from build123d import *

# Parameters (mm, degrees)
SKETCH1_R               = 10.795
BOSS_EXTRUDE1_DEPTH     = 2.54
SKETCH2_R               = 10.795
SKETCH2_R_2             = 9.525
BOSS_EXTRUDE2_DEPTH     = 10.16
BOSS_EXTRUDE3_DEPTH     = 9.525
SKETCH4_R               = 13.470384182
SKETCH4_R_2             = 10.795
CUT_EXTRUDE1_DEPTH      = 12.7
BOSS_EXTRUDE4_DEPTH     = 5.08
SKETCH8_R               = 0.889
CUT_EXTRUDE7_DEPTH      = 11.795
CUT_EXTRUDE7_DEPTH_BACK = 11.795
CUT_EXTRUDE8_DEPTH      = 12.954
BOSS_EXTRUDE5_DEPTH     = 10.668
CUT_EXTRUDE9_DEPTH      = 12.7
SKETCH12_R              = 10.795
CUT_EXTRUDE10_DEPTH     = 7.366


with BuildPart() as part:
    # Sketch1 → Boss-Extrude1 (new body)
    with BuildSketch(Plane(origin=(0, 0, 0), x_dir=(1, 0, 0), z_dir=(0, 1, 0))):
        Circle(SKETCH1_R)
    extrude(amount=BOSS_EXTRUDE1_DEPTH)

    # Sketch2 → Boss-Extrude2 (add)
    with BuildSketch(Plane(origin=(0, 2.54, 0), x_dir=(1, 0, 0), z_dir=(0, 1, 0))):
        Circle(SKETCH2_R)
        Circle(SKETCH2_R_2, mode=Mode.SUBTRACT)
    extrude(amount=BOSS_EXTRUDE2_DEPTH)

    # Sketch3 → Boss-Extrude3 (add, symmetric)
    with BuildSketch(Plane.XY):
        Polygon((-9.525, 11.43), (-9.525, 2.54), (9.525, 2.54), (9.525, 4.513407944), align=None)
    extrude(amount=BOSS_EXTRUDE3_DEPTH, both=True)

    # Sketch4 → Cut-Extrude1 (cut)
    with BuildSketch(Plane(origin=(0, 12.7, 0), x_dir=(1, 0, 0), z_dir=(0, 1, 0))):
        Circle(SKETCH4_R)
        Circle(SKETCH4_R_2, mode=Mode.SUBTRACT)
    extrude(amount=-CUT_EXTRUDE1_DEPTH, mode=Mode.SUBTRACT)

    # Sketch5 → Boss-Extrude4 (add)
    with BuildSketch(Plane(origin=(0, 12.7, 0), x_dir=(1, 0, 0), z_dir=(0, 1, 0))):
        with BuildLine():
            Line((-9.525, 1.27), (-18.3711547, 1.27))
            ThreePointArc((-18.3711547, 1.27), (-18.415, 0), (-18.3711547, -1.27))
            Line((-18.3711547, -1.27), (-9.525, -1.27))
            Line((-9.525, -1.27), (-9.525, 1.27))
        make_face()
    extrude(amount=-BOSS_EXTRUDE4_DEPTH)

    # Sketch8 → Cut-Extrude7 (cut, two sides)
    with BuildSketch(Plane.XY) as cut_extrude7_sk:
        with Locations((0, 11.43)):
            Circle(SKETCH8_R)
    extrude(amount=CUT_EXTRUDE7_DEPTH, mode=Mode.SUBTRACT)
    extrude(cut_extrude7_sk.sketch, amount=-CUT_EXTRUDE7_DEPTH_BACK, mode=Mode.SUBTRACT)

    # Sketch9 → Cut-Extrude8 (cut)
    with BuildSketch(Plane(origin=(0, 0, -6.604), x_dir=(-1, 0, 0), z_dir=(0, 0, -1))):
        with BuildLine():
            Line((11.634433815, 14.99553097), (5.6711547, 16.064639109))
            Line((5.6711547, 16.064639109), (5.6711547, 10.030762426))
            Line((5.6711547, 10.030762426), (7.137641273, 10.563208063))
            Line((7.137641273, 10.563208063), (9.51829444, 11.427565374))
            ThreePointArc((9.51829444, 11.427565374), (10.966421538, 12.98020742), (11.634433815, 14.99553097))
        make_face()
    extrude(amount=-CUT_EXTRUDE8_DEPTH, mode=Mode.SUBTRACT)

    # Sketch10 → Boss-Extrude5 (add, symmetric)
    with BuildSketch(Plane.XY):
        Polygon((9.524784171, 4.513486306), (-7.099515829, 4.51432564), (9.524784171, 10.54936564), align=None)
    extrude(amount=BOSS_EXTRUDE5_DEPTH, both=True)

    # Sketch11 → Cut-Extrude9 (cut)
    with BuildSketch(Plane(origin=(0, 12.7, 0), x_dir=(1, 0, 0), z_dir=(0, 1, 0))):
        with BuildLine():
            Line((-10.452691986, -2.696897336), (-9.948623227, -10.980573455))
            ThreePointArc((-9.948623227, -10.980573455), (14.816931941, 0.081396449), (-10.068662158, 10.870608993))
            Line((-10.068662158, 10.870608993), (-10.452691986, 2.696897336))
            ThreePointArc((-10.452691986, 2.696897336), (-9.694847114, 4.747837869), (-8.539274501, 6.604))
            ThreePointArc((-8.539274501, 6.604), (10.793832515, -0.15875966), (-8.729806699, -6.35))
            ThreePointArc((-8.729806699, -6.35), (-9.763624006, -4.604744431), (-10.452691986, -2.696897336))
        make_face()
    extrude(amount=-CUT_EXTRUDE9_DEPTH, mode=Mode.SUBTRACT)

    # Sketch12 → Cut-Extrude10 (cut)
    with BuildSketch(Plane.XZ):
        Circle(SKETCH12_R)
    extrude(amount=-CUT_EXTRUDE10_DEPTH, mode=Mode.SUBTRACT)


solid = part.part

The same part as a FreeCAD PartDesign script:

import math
import FreeCAD as App
import Part
import Sketcher
Q = App.Units.Quantity

doc = App.newDocument("Part")
params = doc.addObject("Spreadsheet::Sheet", "Params")
for row, (alias, value) in enumerate([
    ("sketch1_diameter", "0.85 in"),
    ("pad1_length", "0.1 in"),
    ("sketch2_diameter", "0.85 in"),
    ("sketch2_diameter2", "0.75 in"),
    ("pad2_length", "0.4 in"),
    ("sketch3_width", "0.75 in"),
    ("sketch3_height", "0.35 in"),
    ("pad3_length", "0.75 in"),
    ("sketch4_diameter", "0.85 in"),
    ("pocket1_length", "0.5 in"),
    ("sketch5_height", "0.1 in"),
    ("sketch5_radius", "0.725 in"),
    ("pad4_length", "0.2 in"),
    ("sketch6_diameter", "0.07 in"),
    ("pocket3_length", "0.51 in"),
    ("pad5_length", "0.84 in"),
    ("sketch9_radius", "0.425 in"),
    ("pocket4_length", "0.5 in"),
    ("sketch10_diameter", "0.85 in"),
    ("pocket5_length", "0.29 in"),
], start=1):
    params.set(f"A{row}", alias)
    params.set(f"B{row}", "=" + value)
    params.setAlias(f"B{row}", alias)

body = doc.addObject("PartDesign::Body", "Body")

sketch1 = doc.addObject("Sketcher::SketchObject", "Sketch")
body.addObject(sketch1)
sketch1.AttachmentSupport = (doc.XZ_Plane, [""])
sketch1.MapMode = "FlatFace"
sketch1.addGeometry(Part.Circle(App.Vector(0, 0, 0), App.Vector(0, 0, 1), 10.795), False)
sketch1.addConstraint(Sketcher.Constraint("Coincident", 0, 3, -1, 1))
sketch1.addConstraint(Sketcher.Constraint("Diameter", 0, Q("0.85 in")))
sketch1.setExpression("Constraints[1]", "Params.sketch1_diameter")
pad1 = doc.addObject("PartDesign::Pad", "Pad")
body.addObject(pad1)
pad1.Profile = sketch1
pad1.setExpression("Length", "Params.pad1_length")
pad1.Reversed = True

sketch2 = doc.addObject("Sketcher::SketchObject", "Sketch001")
body.addObject(sketch2)
sketch2.AttachmentSupport = (doc.XZ_Plane, [""])
sketch2.MapMode = "FlatFace"
sketch2.AttachmentOffset = App.Placement(App.Vector(0, 0, -0.1 * 25.4), App.Rotation())
sketch2.addGeometry(Part.Circle(App.Vector(0, 0, 0), App.Vector(0, 0, 1), 10.795), False)
sketch2.addGeometry(Part.Circle(App.Vector(0, 0, 0), App.Vector(0, 0, 1), 9.525), False)
sketch2.addConstraint(Sketcher.Constraint("Coincident", 0, 3, -1, 1))
sketch2.addConstraint(Sketcher.Constraint("Coincident", 1, 3, -1, 1))
sketch2.addConstraint(Sketcher.Constraint("Diameter", 0, Q("0.85 in")))
sketch2.addConstraint(Sketcher.Constraint("Diameter", 1, Q("0.75 in")))
sketch2.setExpression("Constraints[2]", "Params.sketch2_diameter")
sketch2.setExpression("Constraints[3]", "Params.sketch2_diameter2")
pad2 = doc.addObject("PartDesign::Pad", "Pad001")
body.addObject(pad2)
pad2.Profile = sketch2
pad2.setExpression("Length", "Params.pad2_length")
pad2.Reversed = True

sketch3 = doc.addObject("Sketcher::SketchObject", "Sketch002")
body.addObject(sketch3)
sketch3.AttachmentSupport = (doc.XY_Plane, [""])
sketch3.MapMode = "FlatFace"
sketch3.addGeometry(Part.LineSegment(App.Vector(-9.525, 11.43, 0), App.Vector(-9.525, 2.54, 0)), False)
sketch3.addGeometry(Part.LineSegment(App.Vector(-9.525, 2.54, 0), App.Vector(9.525, 2.54, 0)), False)
sketch3.addGeometry(Part.LineSegment(App.Vector(9.525, 2.54, 0), App.Vector(9.525, 4.513408, 0)), False)
sketch3.addGeometry(Part.LineSegment(App.Vector(9.525, 4.513408, 0), App.Vector(-9.525, 11.43, 0)), False)
sketch3.addConstraint(Sketcher.Constraint("Coincident", 0, 2, 1, 1))
sketch3.addConstraint(Sketcher.Constraint("Coincident", 1, 2, 2, 1))
sketch3.addConstraint(Sketcher.Constraint("Coincident", 2, 2, 3, 1))
sketch3.addConstraint(Sketcher.Constraint("Coincident", 3, 2, 0, 1))
sketch3.addConstraint(Sketcher.Constraint("Vertical", 0))
sketch3.addConstraint(Sketcher.Constraint("Horizontal", 1))
sketch3.addConstraint(Sketcher.Constraint("Vertical", 2))
sketch3.addConstraint(Sketcher.Constraint("DistanceX", 1, 1, 1, 2, Q("0.75 in")))
sketch3.addConstraint(Sketcher.Constraint("DistanceY", 0, 2, 0, 1, Q("0.35 in")))
sketch3.addConstraint(Sketcher.Constraint("DistanceY", -1, 1, 0, 2, Q("0.1 in")))
sketch3.addConstraint(Sketcher.Constraint("DistanceX", 0, 2, -1, 1, Q("0.375 in")))
sketch3.addConstraint(Sketcher.Constraint("DistanceY", 2, 1, 2, 2, 1.973408))
sketch3.setExpression("Constraints[7]", "Params.sketch3_width")
sketch3.setExpression("Constraints[8]", "Params.sketch3_height")
pad3 = doc.addObject("PartDesign::Pad", "Pad002")
body.addObject(pad3)
pad3.Profile = sketch3
pad3.setExpression("Length", "Params.pad3_length")
pad3.Midplane = True

sketch4 = doc.addObject("Sketcher::SketchObject", "Sketch003")
body.addObject(sketch4)
sketch4.AttachmentSupport = (doc.XZ_Plane, [""])
sketch4.MapMode = "FlatFace"
sketch4.AttachmentOffset = App.Placement(App.Vector(0, 0, -0.5 * 25.4), App.Rotation())
sketch4.addGeometry(Part.Circle(App.Vector(0, 0, 0), App.Vector(0, 0, 1), 13.470384), False)
sketch4.addGeometry(Part.Circle(App.Vector(0, 0, 0), App.Vector(0, 0, 1), 10.795), False)
sketch4.addConstraint(Sketcher.Constraint("Coincident", 0, 3, -1, 1))
sketch4.addConstraint(Sketcher.Constraint("Coincident", 1, 3, -1, 1))
sketch4.addConstraint(Sketcher.Constraint("Diameter", 1, Q("0.85 in")))
sketch4.addConstraint(Sketcher.Constraint("Diameter", 0, 26.940768))
sketch4.setExpression("Constraints[2]", "Params.sketch4_diameter")
pocket1 = doc.addObject("PartDesign::Pocket", "Pocket")
body.addObject(pocket1)
pocket1.Profile = sketch4
pocket1.setExpression("Length", "Params.pocket1_length")
pocket1.Reversed = True

sketch5 = doc.addObject("Sketcher::SketchObject", "Sketch004")
body.addObject(sketch5)
sketch5.AttachmentSupport = (doc.XZ_Plane, [""])
sketch5.MapMode = "FlatFace"
sketch5.AttachmentOffset = App.Placement(App.Vector(0, 0, -0.5 * 25.4), App.Rotation())
sketch5.addGeometry(Part.LineSegment(App.Vector(-9.525, -1.27, 0), App.Vector(-18.371155, -1.27, 0)), False)
sketch5.addGeometry(Part.ArcOfCircle(Part.Circle(App.Vector(0, 0, 0), App.Vector(0, 0, 1), 18.415), math.radians(176.045428), math.radians(183.954572)), False)
sketch5.addGeometry(Part.LineSegment(App.Vector(-18.371155, 1.27, 0), App.Vector(-9.525, 1.27, 0)), False)
sketch5.addGeometry(Part.LineSegment(App.Vector(-9.525, 1.27, 0), App.Vector(-9.525, -1.27, 0)), False)
sketch5.addConstraint(Sketcher.Constraint("Coincident", 0, 2, 1, 2))
sketch5.addConstraint(Sketcher.Constraint("Coincident", 1, 1, 2, 1))
sketch5.addConstraint(Sketcher.Constraint("Coincident", 2, 2, 3, 1))
sketch5.addConstraint(Sketcher.Constraint("Coincident", 3, 2, 0, 1))
sketch5.addConstraint(Sketcher.Constraint("Horizontal", 0))
sketch5.addConstraint(Sketcher.Constraint("Horizontal", 2))
sketch5.addConstraint(Sketcher.Constraint("Vertical", 3))
sketch5.addConstraint(Sketcher.Constraint("Coincident", 1, 3, -1, 1))
sketch5.addConstraint(Sketcher.Constraint("Vertical", 0, 2, 1, 1))
sketch5.addConstraint(Sketcher.Constraint("DistanceY", 3, 2, 3, 1, Q("0.1 in")))
sketch5.addConstraint(Sketcher.Constraint("Radius", 1, Q("0.725 in")))
sketch5.addConstraint(Sketcher.Constraint("DistanceX", 2, 2, -1, 1, Q("0.375 in")))
sketch5.setExpression("Constraints[9]", "Params.sketch5_height")
sketch5.setExpression("Constraints[10]", "Params.sketch5_radius")
pad4 = doc.addObject("PartDesign::Pad", "Pad003")
body.addObject(pad4)
pad4.Profile = sketch5
pad4.setExpression("Length", "Params.pad4_length")

sketch6 = doc.addObject("Sketcher::SketchObject", "Sketch005")
body.addObject(sketch6)
sketch6.AttachmentSupport = (doc.XY_Plane, [""])
sketch6.MapMode = "FlatFace"
sketch6.addGeometry(Part.Circle(App.Vector(0, 11.43, 0), App.Vector(0, 0, 1), 0.889), False)
sketch6.addConstraint(Sketcher.Constraint("PointOnObject", 0, 3, -2))
sketch6.addConstraint(Sketcher.Constraint("Diameter", 0, Q("0.07 in")))
sketch6.addConstraint(Sketcher.Constraint("DistanceY", -1, 1, 0, 3, Q("0.45 in")))
sketch6.setExpression("Constraints[1]", "Params.sketch6_diameter")
pocket2 = doc.addObject("PartDesign::Pocket", "Pocket001")
body.addObject(pocket2)
pocket2.Profile = sketch6
pocket2.Type = "ThroughAll"
pocket2.Midplane = True

sketch7 = doc.addObject("Sketcher::SketchObject", "Sketch006")
body.addObject(sketch7)
sketch7.AttachmentSupport = (doc.XY_Plane, [""])
sketch7.MapMode = "FlatFace"
sketch7.AttachmentOffset = App.Placement(App.Vector(0, 0, -0.26 * 25.4), App.Rotation())
sketch7.addGeometry(Part.LineSegment(App.Vector(-11.634434, 14.995531, 0), App.Vector(-5.671155, 16.064639, 0)), False)
sketch7.addGeometry(Part.LineSegment(App.Vector(-5.671155, 16.064639, 0), App.Vector(-5.671155, 10.030762, 0)), False)
sketch7.addGeometry(Part.LineSegment(App.Vector(-5.671155, 10.030762, 0), App.Vector(-7.137641, 10.563208, 0)), False)
sketch7.addGeometry(Part.LineSegment(App.Vector(-7.137641, 10.563208, 0), App.Vector(-9.518294, 11.427565, 0)), False)
sketch7.addGeometry(Part.ArcOfCircle(Part.Circle(App.Vector(-6.691744, 15.515494, 0), App.Vector(0, 0, 1), 4.969964), math.radians(-173.994669), math.radians(-124.661471)), False)
sketch7.addConstraint(Sketcher.Constraint("Coincident", 0, 2, 1, 1))
sketch7.addConstraint(Sketcher.Constraint("Coincident", 1, 2, 2, 1))
sketch7.addConstraint(Sketcher.Constraint("Coincident", 2, 2, 3, 1))
sketch7.addConstraint(Sketcher.Constraint("Coincident", 3, 2, 4, 2))
sketch7.addConstraint(Sketcher.Constraint("Coincident", 4, 1, 0, 1))
sketch7.addConstraint(Sketcher.Constraint("Vertical", 1))
sketch7.addConstraint(Sketcher.Constraint("Parallel", 2, 3))
sketch7.addConstraint(Sketcher.Constraint("Radius", 4, 4.969964))
sketch7.addConstraint(Sketcher.Constraint("Distance", 3, 2.532711))
sketch7.addConstraint(Sketcher.Constraint("DistanceY", 1, 2, 1, 1, 6.033877))
sketch7.addConstraint(Sketcher.Constraint("DistanceY", -1, 1, 0, 2, 16.064639))
sketch7.addConstraint(Sketcher.Constraint("DistanceX", 2, 2, -1, 1, 7.137641))
sketch7.addConstraint(Sketcher.Constraint("DistanceY", -1, 1, 2, 2, 10.563208))
sketch7.addConstraint(Sketcher.Constraint("DistanceY", -1, 1, 4, 1, 14.995531))
sketch7.addConstraint(Sketcher.Constraint("DistanceX", 4, 3, 0, 2, 1.020589))
sketch7.addConstraint(Sketcher.Constraint("DistanceY", 1, 2, 4, 3, 5.484731))
pocket3 = doc.addObject("PartDesign::Pocket", "Pocket002")
body.addObject(pocket3)
pocket3.Profile = sketch7
pocket3.setExpression("Length", "Params.pocket3_length")
pocket3.Reversed = True

sketch8 = doc.addObject("Sketcher::SketchObject", "Sketch007")
body.addObject(sketch8)
sketch8.AttachmentSupport = (doc.XY_Plane, [""])
sketch8.MapMode = "FlatFace"
sketch8.addGeometry(Part.LineSegment(App.Vector(-7.099516, 4.514326, 0), App.Vector(9.524784, 4.513486, 0)), False)
sketch8.addGeometry(Part.LineSegment(App.Vector(9.524784, 4.513486, 0), App.Vector(9.524784, 10.549366, 0)), False)
sketch8.addGeometry(Part.LineSegment(App.Vector(9.524784, 10.549366, 0), App.Vector(-7.099516, 4.514326, 0)), False)
sketch8.addConstraint(Sketcher.Constraint("Coincident", 0, 2, 1, 1))
sketch8.addConstraint(Sketcher.Constraint("Coincident", 1, 2, 2, 1))
sketch8.addConstraint(Sketcher.Constraint("Coincident", 2, 2, 0, 1))
sketch8.addConstraint(Sketcher.Constraint("Vertical", 1))
sketch8.addConstraint(Sketcher.Constraint("Distance", 0, Q("0.6545 in")))
sketch8.addConstraint(Sketcher.Constraint("DistanceY", 2, 2, 1, 2, Q("0.2376 in")))
sketch8.addConstraint(Sketcher.Constraint("DistanceY", 1, 1, 1, 2, 6.035879))
sketch8.addConstraint(Sketcher.Constraint("DistanceX", -1, 1, 0, 2, 9.524784))
sketch8.addConstraint(Sketcher.Constraint("DistanceY", -1, 1, 0, 2, 4.513486))
pad5 = doc.addObject("PartDesign::Pad", "Pad004")
body.addObject(pad5)
pad5.Profile = sketch8
pad5.setExpression("Length", "Params.pad5_length")
pad5.Midplane = True

sketch9 = doc.addObject("Sketcher::SketchObject", "Sketch008")
body.addObject(sketch9)
sketch9.AttachmentSupport = (doc.XZ_Plane, [""])
sketch9.MapMode = "FlatFace"
sketch9.AttachmentOffset = App.Placement(App.Vector(0, 0, -0.5 * 25.4), App.Rotation())
sketch9.addGeometry(Part.LineSegment(App.Vector(-10.452692, 2.696897, 0), App.Vector(-9.948623, 10.980573, 0)), False)
sketch9.addGeometry(Part.ArcOfCircle(Part.Circle(App.Vector(0, 0, 0), App.Vector(0, 0, 1), 14.817156), math.radians(-132.806718), math.radians(132.177219)), False)
sketch9.addGeometry(Part.LineSegment(App.Vector(-10.068662, -10.870609, 0), App.Vector(-10.452692, -2.696897, 0)), False)
sketch9.addGeometry(Part.ArcOfCircle(Part.Circle(App.Vector(0, 0, 0), App.Vector(0, 0, 1), 10.795), math.radians(-165.532643), math.radians(-142.282788)), False)
sketch9.addGeometry(Part.ArcOfCircle(Part.Circle(App.Vector(0, 0, 0), App.Vector(0, 0, 1), 10.795), math.radians(-142.282788), math.radians(143.968121)), False)
sketch9.addGeometry(Part.ArcOfCircle(Part.Circle(App.Vector(0, 0, 0), App.Vector(0, 0, 1), 10.795), math.radians(143.968121), math.radians(165.532643)), False)
sketch9.addConstraint(Sketcher.Constraint("Coincident", 0, 2, 1, 2))
sketch9.addConstraint(Sketcher.Constraint("Coincident", 1, 1, 2, 1))
sketch9.addConstraint(Sketcher.Constraint("Coincident", 2, 2, 3, 1))
sketch9.addConstraint(Sketcher.Constraint("Tangent", 3, 2, 4, 1))
sketch9.addConstraint(Sketcher.Constraint("Tangent", 4, 2, 5, 1))
sketch9.addConstraint(Sketcher.Constraint("Coincident", 5, 2, 0, 1))
sketch9.addConstraint(Sketcher.Constraint("Coincident", 1, 3, -1, 1))
sketch9.addConstraint(Sketcher.Constraint("Coincident", 3, 3, -1, 1))
sketch9.addConstraint(Sketcher.Constraint("Coincident", 5, 3, -1, 1))
sketch9.addConstraint(Sketcher.Constraint("Vertical", 2, 2, 5, 2))
sketch9.addConstraint(Sketcher.Constraint("Radius", 3, Q("0.425 in")))
sketch9.addConstraint(Sketcher.Constraint("DistanceY", 3, 2, -1, 1, Q("0.26 in")))
sketch9.addConstraint(Sketcher.Constraint("DistanceY", -1, 1, 4, 2, Q("0.25 in")))
sketch9.addConstraint(Sketcher.Constraint("Radius", 1, 14.817156))
sketch9.addConstraint(Sketcher.Constraint("Distance", 0, 8.298998))
sketch9.addConstraint(Sketcher.Constraint("Distance", 2, 8.182728))
sketch9.addConstraint(Sketcher.Constraint("DistanceY", 1, 1, -1, 1, 10.870609))
sketch9.setExpression("Constraints[10]", "Params.sketch9_radius")
pocket4 = doc.addObject("PartDesign::Pocket", "Pocket003")
body.addObject(pocket4)
pocket4.Profile = sketch9
pocket4.setExpression("Length", "Params.pocket4_length")
pocket4.Reversed = True

sketch10 = doc.addObject("Sketcher::SketchObject", "Sketch009")
body.addObject(sketch10)
sketch10.AttachmentSupport = (doc.XZ_Plane, [""])
sketch10.MapMode = "FlatFace"
sketch10.addGeometry(Part.Circle(App.Vector(0, 0, 0), App.Vector(0, 0, 1), 10.795), False)
sketch10.addConstraint(Sketcher.Constraint("Coincident", 0, 3, -1, 1))
sketch10.addConstraint(Sketcher.Constraint("Diameter", 0, Q("0.85 in")))
sketch10.setExpression("Constraints[1]", "Params.sketch10_diameter")
pocket5 = doc.addObject("PartDesign::Pocket", "Pocket004")
body.addObject(pocket5)
pocket5.Profile = sketch10
pocket5.setExpression("Length", "Params.pocket5_length")

doc.recompute()
